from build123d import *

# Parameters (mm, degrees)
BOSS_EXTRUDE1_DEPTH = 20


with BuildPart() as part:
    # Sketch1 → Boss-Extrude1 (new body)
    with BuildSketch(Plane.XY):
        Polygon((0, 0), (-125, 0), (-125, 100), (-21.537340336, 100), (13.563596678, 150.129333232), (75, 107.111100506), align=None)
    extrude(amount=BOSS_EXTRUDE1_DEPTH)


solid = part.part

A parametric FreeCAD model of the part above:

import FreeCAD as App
import Part
import Sketcher
Q = App.Units.Quantity

doc = App.newDocument("Part")
body = doc.addObject("PartDesign::Body", "Body")

# Sketch on XY plane
sketch1 = body.newObject("Sketcher::SketchObject", "Sketch")
sketch1.AttachmentSupport = (doc.getObject("XY_Plane"), [""])
sketch1.MapMode = "FlatFace"
sketch1.addGeometry(Part.LineSegment(App.Vector(-125, 0, 0), App.Vector(0, 0, 0)), False)
sketch1.addGeometry(Part.LineSegment(App.Vector(0, 0, 0), App.Vector(75, 107, 0)), False)
sketch1.addGeometry(Part.LineSegment(App.Vector(75, 107, 0), App.Vector(14, 150, 0)), False)
sketch1.addGeometry(Part.LineSegment(App.Vector(14, 150, 0), App.Vector(-22, 100, 0)), False)
sketch1.addGeometry(Part.LineSegment(App.Vector(-22, 100, 0), App.Vector(-125, 100, 0)), False)
sketch1.addGeometry(Part.LineSegment(App.Vector(-125, 100, 0), App.Vector(-125, 0, 0)), False)
sketch1.addConstraint(Sketcher.Constraint("Coincident", 0, 2, 1, 1))
sketch1.addConstraint(Sketcher.Constraint("Coincident", 1, 2, 2, 1))
sketch1.addConstraint(Sketcher.Constraint("Coincident", 2, 2, 3, 1))
sketch1.addConstraint(Sketcher.Constraint("Coincident", 3, 2, 4, 1))
sketch1.addConstraint(Sketcher.Constraint("Coincident", 4, 2, 5, 1))
sketch1.addConstraint(Sketcher.Constraint("Coincident", 5, 2, 0, 1))
sketch1.addConstraint(Sketcher.Constraint("Horizontal", 0))
sketch1.addConstraint(Sketcher.Constraint("Horizontal", 4))
sketch1.addConstraint(Sketcher.Constraint("Vertical", 5))
sketch1.addConstraint(Sketcher.Constraint("Coincident", 0, 2, -1, 1))
sketch1.addConstraint(Sketcher.Constraint("Perpendicular", 1, 2))
sketch1.addConstraint(Sketcher.Constraint("Perpendicular", 2, 3))
sketch1.addConstraint(Sketcher.Constraint("DistanceX", 0, 1, 0, 2, 125.0))
sketch1.addConstraint(Sketcher.Constraint("DistanceY", 5, 2, 5, 1, 100.0))
sketch1.addConstraint(Sketcher.Constraint("Angle", 1, Q("55 deg")))
sketch1.addConstraint(Sketcher.Constraint("Distance", 2, 75.0))
sketch1.addConstraint(Sketcher.Constraint("DistanceX", -1, 1, 1, 2, 75.0))
pad1 = body.newObject("PartDesign::Pad", "Pad")
pad1.Profile = sketch1
pad1.Length = 20

doc.recompute()
